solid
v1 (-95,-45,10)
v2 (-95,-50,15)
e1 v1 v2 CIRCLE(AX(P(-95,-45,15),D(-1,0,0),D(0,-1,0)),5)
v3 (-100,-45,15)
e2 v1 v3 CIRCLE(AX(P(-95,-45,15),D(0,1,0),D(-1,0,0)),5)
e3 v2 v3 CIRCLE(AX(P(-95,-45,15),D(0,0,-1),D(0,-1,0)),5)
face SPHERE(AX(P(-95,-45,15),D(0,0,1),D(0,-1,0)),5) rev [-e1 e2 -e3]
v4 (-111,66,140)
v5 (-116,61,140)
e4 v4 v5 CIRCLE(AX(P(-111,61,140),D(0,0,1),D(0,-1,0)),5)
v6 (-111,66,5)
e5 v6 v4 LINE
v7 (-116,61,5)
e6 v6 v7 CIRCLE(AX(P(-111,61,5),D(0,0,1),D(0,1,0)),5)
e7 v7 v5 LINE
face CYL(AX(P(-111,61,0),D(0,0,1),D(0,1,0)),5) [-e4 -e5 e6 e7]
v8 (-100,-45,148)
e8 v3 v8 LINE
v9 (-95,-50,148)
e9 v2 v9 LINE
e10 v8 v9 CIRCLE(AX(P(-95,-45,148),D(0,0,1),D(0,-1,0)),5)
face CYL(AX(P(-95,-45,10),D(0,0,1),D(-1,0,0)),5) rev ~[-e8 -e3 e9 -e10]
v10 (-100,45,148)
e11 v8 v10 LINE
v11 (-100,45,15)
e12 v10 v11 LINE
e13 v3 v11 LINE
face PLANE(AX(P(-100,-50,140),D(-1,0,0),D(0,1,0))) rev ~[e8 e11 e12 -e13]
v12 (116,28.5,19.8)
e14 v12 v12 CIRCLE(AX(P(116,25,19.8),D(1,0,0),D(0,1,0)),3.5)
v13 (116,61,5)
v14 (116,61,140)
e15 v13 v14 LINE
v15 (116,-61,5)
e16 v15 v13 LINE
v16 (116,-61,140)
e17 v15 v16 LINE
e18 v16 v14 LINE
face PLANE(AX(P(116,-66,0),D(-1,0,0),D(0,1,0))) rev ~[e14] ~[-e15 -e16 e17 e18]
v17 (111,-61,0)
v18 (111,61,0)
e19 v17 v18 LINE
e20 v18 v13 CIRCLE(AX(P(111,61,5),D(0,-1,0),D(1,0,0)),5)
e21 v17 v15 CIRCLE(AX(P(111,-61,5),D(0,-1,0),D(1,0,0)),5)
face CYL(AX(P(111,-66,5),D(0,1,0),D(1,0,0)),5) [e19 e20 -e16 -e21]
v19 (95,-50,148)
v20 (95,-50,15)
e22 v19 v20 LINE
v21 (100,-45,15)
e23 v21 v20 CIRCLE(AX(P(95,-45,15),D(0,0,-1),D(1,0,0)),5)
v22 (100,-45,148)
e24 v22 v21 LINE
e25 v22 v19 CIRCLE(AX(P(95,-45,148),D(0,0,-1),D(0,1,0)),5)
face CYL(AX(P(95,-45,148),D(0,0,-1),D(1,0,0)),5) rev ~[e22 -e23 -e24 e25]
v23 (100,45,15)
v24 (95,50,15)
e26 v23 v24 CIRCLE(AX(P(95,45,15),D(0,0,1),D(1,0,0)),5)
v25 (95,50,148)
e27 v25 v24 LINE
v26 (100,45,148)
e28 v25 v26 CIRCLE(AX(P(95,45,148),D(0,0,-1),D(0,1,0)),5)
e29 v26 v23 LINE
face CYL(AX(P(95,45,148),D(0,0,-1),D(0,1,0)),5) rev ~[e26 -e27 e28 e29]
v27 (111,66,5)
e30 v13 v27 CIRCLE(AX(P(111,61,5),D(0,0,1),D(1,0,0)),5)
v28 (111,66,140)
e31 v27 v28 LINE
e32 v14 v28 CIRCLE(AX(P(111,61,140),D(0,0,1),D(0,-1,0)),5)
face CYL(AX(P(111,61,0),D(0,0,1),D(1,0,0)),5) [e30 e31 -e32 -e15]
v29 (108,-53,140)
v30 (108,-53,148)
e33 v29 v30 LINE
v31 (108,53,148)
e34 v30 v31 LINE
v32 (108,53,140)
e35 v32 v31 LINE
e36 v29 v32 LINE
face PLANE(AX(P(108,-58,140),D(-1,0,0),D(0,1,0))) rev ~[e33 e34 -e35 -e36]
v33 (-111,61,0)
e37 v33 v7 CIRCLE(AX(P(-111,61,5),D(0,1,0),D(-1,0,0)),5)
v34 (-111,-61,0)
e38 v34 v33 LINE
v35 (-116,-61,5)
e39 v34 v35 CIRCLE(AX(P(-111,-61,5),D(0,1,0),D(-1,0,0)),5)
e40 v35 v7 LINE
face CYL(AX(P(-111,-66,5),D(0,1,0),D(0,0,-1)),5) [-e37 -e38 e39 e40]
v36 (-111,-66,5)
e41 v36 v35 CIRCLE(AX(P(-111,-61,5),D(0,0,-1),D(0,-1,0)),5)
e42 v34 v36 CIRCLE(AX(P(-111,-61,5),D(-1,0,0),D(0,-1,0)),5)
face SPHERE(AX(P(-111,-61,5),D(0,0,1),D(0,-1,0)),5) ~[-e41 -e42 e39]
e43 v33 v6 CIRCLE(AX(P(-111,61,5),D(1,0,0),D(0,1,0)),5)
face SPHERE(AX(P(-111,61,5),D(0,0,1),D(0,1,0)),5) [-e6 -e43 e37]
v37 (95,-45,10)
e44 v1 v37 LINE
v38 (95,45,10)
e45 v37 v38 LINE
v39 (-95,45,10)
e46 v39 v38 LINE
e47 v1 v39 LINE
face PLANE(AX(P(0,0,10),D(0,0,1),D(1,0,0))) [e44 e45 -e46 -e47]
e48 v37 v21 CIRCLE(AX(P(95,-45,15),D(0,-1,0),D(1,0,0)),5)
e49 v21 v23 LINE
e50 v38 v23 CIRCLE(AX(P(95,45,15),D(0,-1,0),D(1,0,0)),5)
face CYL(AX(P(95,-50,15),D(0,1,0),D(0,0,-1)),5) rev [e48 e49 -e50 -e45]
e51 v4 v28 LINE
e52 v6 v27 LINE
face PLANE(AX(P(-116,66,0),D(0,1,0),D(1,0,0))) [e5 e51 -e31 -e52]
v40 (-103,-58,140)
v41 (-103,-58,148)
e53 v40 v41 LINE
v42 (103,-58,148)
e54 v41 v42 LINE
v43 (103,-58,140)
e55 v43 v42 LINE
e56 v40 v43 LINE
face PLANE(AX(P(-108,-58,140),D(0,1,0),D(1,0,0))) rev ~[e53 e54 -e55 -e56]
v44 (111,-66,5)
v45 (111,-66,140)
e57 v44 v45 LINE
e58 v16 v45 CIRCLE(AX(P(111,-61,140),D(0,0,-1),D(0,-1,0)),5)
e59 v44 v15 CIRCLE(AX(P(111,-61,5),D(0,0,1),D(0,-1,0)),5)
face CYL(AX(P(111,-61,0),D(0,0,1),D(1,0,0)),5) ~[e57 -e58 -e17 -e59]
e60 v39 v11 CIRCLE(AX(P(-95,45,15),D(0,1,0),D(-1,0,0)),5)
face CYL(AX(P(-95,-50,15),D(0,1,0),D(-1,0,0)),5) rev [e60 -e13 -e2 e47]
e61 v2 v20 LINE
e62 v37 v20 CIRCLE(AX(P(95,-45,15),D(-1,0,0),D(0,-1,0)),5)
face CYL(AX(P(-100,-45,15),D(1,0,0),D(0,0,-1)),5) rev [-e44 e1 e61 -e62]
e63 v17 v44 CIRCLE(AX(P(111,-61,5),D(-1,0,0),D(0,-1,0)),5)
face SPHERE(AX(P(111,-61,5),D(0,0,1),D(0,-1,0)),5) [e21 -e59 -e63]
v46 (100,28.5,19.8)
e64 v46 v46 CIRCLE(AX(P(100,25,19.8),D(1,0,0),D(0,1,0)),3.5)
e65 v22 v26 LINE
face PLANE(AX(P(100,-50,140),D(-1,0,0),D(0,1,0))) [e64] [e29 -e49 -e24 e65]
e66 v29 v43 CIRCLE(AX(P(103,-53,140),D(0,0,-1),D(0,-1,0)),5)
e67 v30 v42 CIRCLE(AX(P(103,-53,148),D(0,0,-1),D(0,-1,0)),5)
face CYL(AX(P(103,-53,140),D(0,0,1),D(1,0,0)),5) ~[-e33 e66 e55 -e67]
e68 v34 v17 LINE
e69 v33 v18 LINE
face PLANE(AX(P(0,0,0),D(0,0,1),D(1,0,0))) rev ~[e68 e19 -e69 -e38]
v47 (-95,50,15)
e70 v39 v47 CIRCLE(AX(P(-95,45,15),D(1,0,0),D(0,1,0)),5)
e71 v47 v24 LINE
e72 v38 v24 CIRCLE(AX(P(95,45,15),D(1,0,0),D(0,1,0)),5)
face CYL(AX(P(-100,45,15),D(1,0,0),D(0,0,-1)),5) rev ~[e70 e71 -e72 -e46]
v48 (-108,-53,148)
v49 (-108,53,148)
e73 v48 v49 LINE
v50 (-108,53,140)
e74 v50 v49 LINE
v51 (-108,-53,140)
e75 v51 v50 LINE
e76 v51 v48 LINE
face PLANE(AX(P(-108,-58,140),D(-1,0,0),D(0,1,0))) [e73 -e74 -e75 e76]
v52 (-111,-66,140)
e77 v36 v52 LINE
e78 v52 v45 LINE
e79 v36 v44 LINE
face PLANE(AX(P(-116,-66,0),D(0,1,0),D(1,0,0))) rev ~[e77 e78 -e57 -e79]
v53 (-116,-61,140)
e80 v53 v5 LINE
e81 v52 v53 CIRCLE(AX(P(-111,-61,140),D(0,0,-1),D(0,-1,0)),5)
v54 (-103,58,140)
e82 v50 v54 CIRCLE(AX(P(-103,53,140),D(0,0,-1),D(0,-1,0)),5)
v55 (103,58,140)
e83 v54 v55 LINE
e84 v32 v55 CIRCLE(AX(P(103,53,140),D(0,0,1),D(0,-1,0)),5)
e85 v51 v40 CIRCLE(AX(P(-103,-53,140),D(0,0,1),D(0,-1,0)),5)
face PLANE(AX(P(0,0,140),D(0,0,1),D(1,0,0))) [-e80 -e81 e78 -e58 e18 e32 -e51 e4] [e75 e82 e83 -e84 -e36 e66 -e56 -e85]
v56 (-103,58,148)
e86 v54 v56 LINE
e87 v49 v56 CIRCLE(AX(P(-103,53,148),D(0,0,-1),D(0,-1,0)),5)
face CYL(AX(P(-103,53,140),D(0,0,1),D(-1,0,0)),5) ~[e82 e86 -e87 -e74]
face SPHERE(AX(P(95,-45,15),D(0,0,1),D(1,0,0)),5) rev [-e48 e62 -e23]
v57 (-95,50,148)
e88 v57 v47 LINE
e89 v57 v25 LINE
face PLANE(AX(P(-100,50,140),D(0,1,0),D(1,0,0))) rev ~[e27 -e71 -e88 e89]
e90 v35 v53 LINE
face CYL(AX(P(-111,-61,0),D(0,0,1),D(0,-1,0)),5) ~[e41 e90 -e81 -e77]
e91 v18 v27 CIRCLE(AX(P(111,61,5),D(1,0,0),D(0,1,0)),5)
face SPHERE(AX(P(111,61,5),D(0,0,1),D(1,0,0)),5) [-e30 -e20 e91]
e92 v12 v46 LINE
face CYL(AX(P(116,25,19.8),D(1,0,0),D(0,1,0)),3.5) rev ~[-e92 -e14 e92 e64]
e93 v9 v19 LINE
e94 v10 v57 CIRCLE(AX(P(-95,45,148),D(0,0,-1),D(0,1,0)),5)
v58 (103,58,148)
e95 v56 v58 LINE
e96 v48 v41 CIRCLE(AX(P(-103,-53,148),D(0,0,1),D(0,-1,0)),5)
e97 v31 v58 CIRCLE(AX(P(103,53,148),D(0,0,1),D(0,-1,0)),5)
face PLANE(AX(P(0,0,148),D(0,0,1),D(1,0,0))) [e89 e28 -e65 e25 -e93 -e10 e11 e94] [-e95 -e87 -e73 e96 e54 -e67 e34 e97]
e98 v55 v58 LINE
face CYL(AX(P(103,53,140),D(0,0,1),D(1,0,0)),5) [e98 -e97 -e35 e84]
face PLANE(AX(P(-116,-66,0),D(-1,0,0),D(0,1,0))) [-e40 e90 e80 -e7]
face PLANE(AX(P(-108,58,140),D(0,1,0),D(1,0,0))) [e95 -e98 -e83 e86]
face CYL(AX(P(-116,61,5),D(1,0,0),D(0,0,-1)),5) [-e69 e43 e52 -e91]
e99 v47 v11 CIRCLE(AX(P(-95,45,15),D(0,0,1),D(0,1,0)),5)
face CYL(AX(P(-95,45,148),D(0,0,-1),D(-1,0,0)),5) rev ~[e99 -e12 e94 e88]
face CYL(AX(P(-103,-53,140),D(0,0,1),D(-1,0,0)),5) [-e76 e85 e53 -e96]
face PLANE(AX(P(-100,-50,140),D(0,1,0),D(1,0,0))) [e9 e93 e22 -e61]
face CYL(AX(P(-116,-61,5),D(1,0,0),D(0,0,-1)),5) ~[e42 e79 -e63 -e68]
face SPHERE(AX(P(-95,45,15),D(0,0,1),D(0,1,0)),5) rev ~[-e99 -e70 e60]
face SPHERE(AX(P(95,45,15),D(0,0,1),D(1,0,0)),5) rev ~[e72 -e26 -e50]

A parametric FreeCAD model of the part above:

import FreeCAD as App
import Part
import Sketcher
from FreeCAD import Vector
Q = App.Units.Quantity


def edges_at(feature, points):
    """Names of the edges that pass closest to the given points."""
    edges = feature.Shape.Edges
    near = lambda p: min(range(len(edges)), key=lambda i: edges[i].distToShape(Part.Vertex(*p))[0])
    return sorted({f"Edge{near(p) + 1}" for p in points})

doc = App.newDocument("Part")
body = doc.addObject("PartDesign::Body", "Body")

# Sketch on XY plane
sketch1 = doc.addObject("Sketcher::SketchObject", "Sketch")
body.addObject(sketch1)
sketch1.AttachmentSupport = (doc.XY_Plane, [""])
sketch1.MapMode = "FlatFace"
sketch1.addGeometry(Part.LineSegment(Vector(-116, 66, 0), Vector(-116, -66, 0)), False)
sketch1.addGeometry(Part.LineSegment(Vector(-116, -66, 0), Vector(116, -66, 0)), False)
sketch1.addGeometry(Part.LineSegment(Vector(116, -66, 0), Vector(116, 66, 0)), False)
sketch1.addGeometry(Part.LineSegment(Vector(116, 66, 0), Vector(-116, 66, 0)), False)
sketch1.addConstraint(Sketcher.Constraint("Coincident", 0, 2, 1, 1))
sketch1.addConstraint(Sketcher.Constraint("Coincident", 1, 2, 2, 1))
sketch1.addConstraint(Sketcher.Constraint("Coincident", 2, 2, 3, 1))
sketch1.addConstraint(Sketcher.Constraint("Coincident", 3, 2, 0, 1))
sketch1.addConstraint(Sketcher.Constraint("Vertical", 0))
sketch1.addConstraint(Sketcher.Constraint("Horizontal", 1))
sketch1.addConstraint(Sketcher.Constraint("Vertical", 2))
sketch1.addConstraint(Sketcher.Constraint("Horizontal", 3))
sketch1.addConstraint(Sketcher.Constraint("Symmetric", 0, 2, 2, 2, -1, 1))
sketch1.addConstraint(Sketcher.Constraint("DistanceX", 1, 1, 1, 2, Q("232 mm")))
sketch1.addConstraint(Sketcher.Constraint("DistanceY", 0, 2, 0, 1, Q("132 mm")))
pad1 = doc.addObject("PartDesign::Pad", "Pad")
body.addObject(pad1)
pad1.Profile = sketch1
pad1.Length = 140

# Sketch on XY plane
sketch2 = doc.addObject("Sketcher::SketchObject", "Sketch001")
body.addObject(sketch2)
sketch2.AttachmentSupport = (doc.XY_Plane, [""])
sketch2.MapMode = "FlatFace"
sketch2.AttachmentOffset = App.Placement(Vector(0, 0, 140), App.Rotation())
sketch2.addGeometry(Part.LineSegment(Vector(-100, 50, 0), Vector(-100, -50, 0)), False)
sketch2.addGeometry(Part.LineSegment(Vector(-100, -50, 0), Vector(100, -50, 0)), False)
sketch2.addGeometry(Part.LineSegment(Vector(100, -50, 0), Vector(100, 50, 0)), False)
sketch2.addGeometry(Part.LineSegment(Vector(100, 50, 0), Vector(-100, 50, 0)), False)
sketch2.addConstraint(Sketcher.Constraint("Coincident", 0, 2, 1, 1))
sketch2.addConstraint(Sketcher.Constraint("Coincident", 1, 2, 2, 1))
sketch2.addConstraint(Sketcher.Constraint("Coincident", 2, 2, 3, 1))
sketch2.addConstraint(Sketcher.Constraint("Coincident", 3, 2, 0, 1))
sketch2.addConstraint(Sketcher.Constraint("Vertical", 0))
sketch2.addConstraint(Sketcher.Constraint("Horizontal", 1))
sketch2.addConstraint(Sketcher.Constraint("Vertical", 2))
sketch2.addConstraint(Sketcher.Constraint("Horizontal", 3))
sketch2.addConstraint(Sketcher.Constraint("Symmetric", 0, 2, 2, 2, -1, 1))
sketch2.addConstraint(Sketcher.Constraint("DistanceX", 1, 1, 1, 2, Q("200 mm")))
sketch2.addConstraint(Sketcher.Constraint("DistanceY", 0, 2, 0, 1, Q("100 mm")))
pocket1 = doc.addObject("PartDesign::Pocket", "Pocket")
body.addObject(pocket1)
pocket1.Profile = sketch2
pocket1.Length = 130

# Sketch on XY plane
sketch3 = doc.addObject("Sketcher::SketchObject", "Sketch002")
body.addObject(sketch3)
sketch3.AttachmentSupport = (doc.XY_Plane, [""])
sketch3.MapMode = "FlatFace"
sketch3.AttachmentOffset = App.Placement(Vector(0, 0, 140), App.Rotation())
sketch3.addGeometry(Part.LineSegment(Vector(-108, 58, 0), Vector(-108, -58, 0)), False)
sketch3.addGeometry(Part.LineSegment(Vector(-108, -58, 0), Vector(108, -58, 0)), False)
sketch3.addGeometry(Part.LineSegment(Vector(108, -58, 0), Vector(108, 58, 0)), False)
sketch3.addGeometry(Part.LineSegment(Vector(108, 58, 0), Vector(-108, 58, 0)), False)
sketch3.addGeometry(Part.LineSegment(Vector(100, -50, 0), Vector(-100, -50, 0)), False)
sketch3.addGeometry(Part.LineSegment(Vector(-100, -50, 0), Vector(-100, 50, 0)), False)
sketch3.addGeometry(Part.LineSegment(Vector(-100, 50, 0), Vector(100, 50, 0)), False)
sketch3.addGeometry(Part.LineSegment(Vector(100, 50, 0), Vector(100, -50, 0)), False)
sketch3.addConstraint(Sketcher.Constraint("Coincident", 0, 2, 1, 1))
sketch3.addConstraint(Sketcher.Constraint("Coincident", 1, 2, 2, 1))
sketch3.addConstraint(Sketcher.Constraint("Coincident", 2, 2, 3, 1))
sketch3.addConstraint(Sketcher.Constraint("Coincident", 3, 2, 0, 1))
sketch3.addConstraint(Sketcher.Constraint("Coincident", 4, 2, 5, 1))
sketch3.addConstraint(Sketcher.Constraint("Coincident", 5, 2, 6, 1))
sketch3.addConstraint(Sketcher.Constraint("Coincident", 6, 2, 7, 1))
sketch3.addConstraint(Sketcher.Constraint("Coincident", 7, 2, 4, 1))
sketch3.addConstraint(Sketcher.Constraint("Vertical", 0))
sketch3.addConstraint(Sketcher.Constraint("Horizontal", 1))
sketch3.addConstraint(Sketcher.Constraint("Vertical", 2))
sketch3.addConstraint(Sketcher.Constraint("Horizontal", 3))
sketch3.addConstraint(Sketcher.Constraint("Horizontal", 4))
sketch3.addConstraint(Sketcher.Constraint("Vertical", 5))
sketch3.addConstraint(Sketcher.Constraint("Horizontal", 6))
sketch3.addConstraint(Sketcher.Constraint("Vertical", 7))
sketch3.addConstraint(Sketcher.Constraint("Symmetric", 0, 2, 2, 2, -1, 1))
sketch3.addConstraint(Sketcher.Constraint("Symmetric", 4, 2, 6, 2, -1, 1))
sketch3.addConstraint(Sketcher.Constraint("DistanceX", 1, 1, 1, 2, Q("216 mm")))
sketch3.addConstraint(Sketcher.Constraint("DistanceX", 4, 2, 4, 1, Q("200 mm")))
sketch3.addConstraint(Sketcher.Constraint("DistanceY", 0, 2, 0, 1, Q("116 mm")))
sketch3.addConstraint(Sketcher.Constraint("DistanceY", 5, 1, 5, 2, Q("100 mm")))
pad2 = doc.addObject("PartDesign::Pad", "Pad001")
body.addObject(pad2)
pad2.Profile = sketch3
pad2.Length = 8
doc.recompute()

fillet = doc.addObject("PartDesign::Fillet", "Fillet")
body.addObject(fillet)
fillet.Base = (pad2, edges_at(pad2, [
    (-116, -66, 70),
    (116, -66, 70),
    (116, 66, 70),
    (0, -66, 0),
    (116, 0, 0),
    (-100, 50, 79),
    (-100, -50, 79),
    (-116, 66, 70),
    (100, -50, 79),
    (100, 50, 79),
    (100, 0, 10),
    (0, -50, 10),
    (0, 50, 10),
    (-100, 0, 10),
    (108, -58, 144),
    (108, 58, 144),
    (-108, -58, 144),
    (-108, 58, 144),
    (0, 66, 0),
    (-116, 0, 0),
]))
fillet.Radius = 5

# Sketch on YZ plane
sketch4 = doc.addObject("Sketcher::SketchObject", "Sketch003")
body.addObject(sketch4)
sketch4.AttachmentSupport = (doc.YZ_Plane, [""])
sketch4.MapMode = "FlatFace"
sketch4.AttachmentOffset = App.Placement(Vector(0, 0, 116), App.Rotation())
sketch4.addGeometry(Part.Circle(Vector(25, 19.8, 0), Vector(0, 0, 1), 3.5), False)
sketch4.addConstraint(Sketcher.Constraint("Diameter", 0, Q("7 mm")))
sketch4.addConstraint(Sketcher.Constraint("DistanceX", -1, 1, 0, 3, Q("25 mm")))
sketch4.addConstraint(Sketcher.Constraint("DistanceY", -1, 1, 0, 3, Q("19.8 mm")))
pocket2 = doc.addObject("PartDesign::Pocket", "Pocket001")
body.addObject(pocket2)
pocket2.Profile = sketch4
pocket2.Length = 16

doc.recompute()
